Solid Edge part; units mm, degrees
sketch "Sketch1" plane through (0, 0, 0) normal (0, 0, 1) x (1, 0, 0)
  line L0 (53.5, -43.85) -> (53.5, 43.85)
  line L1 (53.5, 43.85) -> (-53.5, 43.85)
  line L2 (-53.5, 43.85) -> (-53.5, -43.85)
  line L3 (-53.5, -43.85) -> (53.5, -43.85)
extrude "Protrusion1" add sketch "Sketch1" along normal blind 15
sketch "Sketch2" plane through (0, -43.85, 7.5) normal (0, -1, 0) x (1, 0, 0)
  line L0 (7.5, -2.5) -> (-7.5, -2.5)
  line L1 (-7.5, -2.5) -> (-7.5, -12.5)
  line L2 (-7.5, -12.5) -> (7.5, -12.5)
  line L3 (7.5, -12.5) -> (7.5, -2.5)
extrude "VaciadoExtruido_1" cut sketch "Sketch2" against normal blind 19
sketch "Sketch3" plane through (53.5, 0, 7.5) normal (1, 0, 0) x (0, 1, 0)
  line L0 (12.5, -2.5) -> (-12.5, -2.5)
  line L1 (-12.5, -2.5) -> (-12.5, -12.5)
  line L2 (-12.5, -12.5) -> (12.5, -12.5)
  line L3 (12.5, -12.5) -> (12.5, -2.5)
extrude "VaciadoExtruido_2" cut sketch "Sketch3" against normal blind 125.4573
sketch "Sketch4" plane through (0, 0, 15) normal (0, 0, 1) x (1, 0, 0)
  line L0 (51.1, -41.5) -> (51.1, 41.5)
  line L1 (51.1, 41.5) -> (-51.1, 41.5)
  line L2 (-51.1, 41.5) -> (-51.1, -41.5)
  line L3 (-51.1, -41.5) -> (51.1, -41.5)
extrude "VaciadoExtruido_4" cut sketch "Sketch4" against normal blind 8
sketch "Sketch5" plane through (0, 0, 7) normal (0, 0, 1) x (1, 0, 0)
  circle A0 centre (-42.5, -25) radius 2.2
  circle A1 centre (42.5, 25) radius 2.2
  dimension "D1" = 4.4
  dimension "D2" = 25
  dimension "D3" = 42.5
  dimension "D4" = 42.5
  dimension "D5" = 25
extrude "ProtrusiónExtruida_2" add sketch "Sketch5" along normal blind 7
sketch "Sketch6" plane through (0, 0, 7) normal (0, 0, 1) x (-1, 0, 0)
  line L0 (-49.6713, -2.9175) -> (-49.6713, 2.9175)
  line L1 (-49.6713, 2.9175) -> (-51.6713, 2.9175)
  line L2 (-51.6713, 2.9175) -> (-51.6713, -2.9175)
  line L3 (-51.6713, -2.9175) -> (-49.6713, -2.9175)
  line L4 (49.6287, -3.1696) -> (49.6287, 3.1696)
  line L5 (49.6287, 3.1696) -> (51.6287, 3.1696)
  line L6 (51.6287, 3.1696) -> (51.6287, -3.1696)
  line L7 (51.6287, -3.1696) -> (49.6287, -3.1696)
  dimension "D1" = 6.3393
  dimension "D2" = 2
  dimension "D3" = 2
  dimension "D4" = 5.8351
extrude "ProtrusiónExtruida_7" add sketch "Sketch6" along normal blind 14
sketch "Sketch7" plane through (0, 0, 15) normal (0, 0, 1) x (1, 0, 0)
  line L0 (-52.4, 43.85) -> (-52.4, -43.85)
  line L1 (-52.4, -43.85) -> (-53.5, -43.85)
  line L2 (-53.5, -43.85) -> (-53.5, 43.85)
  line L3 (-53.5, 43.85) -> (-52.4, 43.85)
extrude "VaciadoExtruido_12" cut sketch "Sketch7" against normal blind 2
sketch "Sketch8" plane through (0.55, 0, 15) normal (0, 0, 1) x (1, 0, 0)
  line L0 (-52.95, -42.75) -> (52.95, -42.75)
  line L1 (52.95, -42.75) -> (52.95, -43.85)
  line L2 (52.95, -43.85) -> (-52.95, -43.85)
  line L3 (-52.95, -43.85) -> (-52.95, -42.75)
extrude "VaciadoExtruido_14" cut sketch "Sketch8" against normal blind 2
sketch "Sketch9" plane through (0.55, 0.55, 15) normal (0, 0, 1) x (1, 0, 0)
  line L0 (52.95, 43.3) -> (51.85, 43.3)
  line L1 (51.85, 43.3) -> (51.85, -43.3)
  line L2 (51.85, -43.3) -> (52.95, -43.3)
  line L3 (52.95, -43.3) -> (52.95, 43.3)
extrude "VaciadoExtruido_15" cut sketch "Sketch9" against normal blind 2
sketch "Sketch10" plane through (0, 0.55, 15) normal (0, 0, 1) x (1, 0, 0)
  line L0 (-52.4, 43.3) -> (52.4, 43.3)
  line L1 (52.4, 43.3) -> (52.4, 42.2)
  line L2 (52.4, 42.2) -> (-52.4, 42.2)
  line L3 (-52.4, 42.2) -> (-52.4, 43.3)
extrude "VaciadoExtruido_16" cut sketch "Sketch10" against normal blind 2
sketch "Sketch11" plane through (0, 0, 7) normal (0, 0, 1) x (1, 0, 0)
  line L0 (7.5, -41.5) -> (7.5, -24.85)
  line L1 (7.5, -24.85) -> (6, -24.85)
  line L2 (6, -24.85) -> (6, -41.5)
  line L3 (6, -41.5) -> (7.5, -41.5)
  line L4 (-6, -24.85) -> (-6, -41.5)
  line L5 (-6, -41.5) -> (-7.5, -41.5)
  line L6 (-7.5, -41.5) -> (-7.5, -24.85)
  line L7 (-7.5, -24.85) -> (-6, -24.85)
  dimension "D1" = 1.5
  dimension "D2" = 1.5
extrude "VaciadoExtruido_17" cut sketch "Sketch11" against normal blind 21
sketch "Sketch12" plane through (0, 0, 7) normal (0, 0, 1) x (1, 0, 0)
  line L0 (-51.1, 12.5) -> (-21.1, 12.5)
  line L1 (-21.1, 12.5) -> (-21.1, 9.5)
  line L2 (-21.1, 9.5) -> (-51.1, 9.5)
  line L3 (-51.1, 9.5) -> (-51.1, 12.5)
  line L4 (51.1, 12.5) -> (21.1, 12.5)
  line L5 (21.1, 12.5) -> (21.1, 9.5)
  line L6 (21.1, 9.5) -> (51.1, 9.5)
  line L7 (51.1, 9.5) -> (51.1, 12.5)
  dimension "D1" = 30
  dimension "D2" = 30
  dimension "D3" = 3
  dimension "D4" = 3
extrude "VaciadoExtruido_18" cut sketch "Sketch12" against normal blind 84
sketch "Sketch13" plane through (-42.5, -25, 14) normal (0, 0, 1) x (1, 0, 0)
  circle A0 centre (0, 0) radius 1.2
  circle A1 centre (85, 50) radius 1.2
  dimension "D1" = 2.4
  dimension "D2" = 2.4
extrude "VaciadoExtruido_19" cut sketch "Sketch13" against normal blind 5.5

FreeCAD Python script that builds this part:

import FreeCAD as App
import Part
import Sketcher
from FreeCAD import Vector
Q = App.Units.Quantity

doc = App.newDocument("Part")
body = doc.addObject("PartDesign::Body", "Body")

sketch1 = doc.addObject("Sketcher::SketchObject", "Sketch")
body.addObject(sketch1)
sketch1.AttachmentSupport = (doc.XY_Plane, [""])
sketch1.MapMode = "FlatFace"
sketch1.addGeometry([
    Part.LineSegment(Vector(-54, -44, 0), Vector(54, -44, 0)),
    Part.LineSegment(Vector(54, -44, 0), Vector(54, 44, 0)),
    Part.LineSegment(Vector(54, 44, 0), Vector(-54, 44, 0)),
    Part.LineSegment(Vector(-54, 44, 0), Vector(-54, -44, 0)),
], False)
sketch1.addConstraint([
    Sketcher.Constraint("Coincident", 0, 2, 1, 1),
    Sketcher.Constraint("Coincident", 1, 2, 2, 1),
    Sketcher.Constraint("Coincident", 2, 2, 3, 1),
    Sketcher.Constraint("Coincident", 3, 2, 0, 1),
    Sketcher.Constraint("Horizontal", 0),
    Sketcher.Constraint("Vertical", 1),
    Sketcher.Constraint("Horizontal", 2),
    Sketcher.Constraint("Vertical", 3),
    Sketcher.Constraint("Symmetric", 0, 2, 2, 2, -1, 1),
    Sketcher.Constraint("DistanceX", 0, 1, 0, 2, Q("107 mm")),
    Sketcher.Constraint("DistanceY", 1, 1, 1, 2, Q("87.7 mm")),
])
pad1 = doc.addObject("PartDesign::Pad", "Pad")
body.addObject(pad1)
pad1.Profile = sketch1
pad1.Length = 15

sketch2 = doc.addObject("Sketcher::SketchObject", "Sketch001")
body.addObject(sketch2)
sketch2.AttachmentSupport = (doc.XZ_Plane, [""])
sketch2.MapMode = "FlatFace"
sketch2.AttachmentOffset = App.Placement(Vector(0, 0, 43.85), App.Rotation())
sketch2.addGeometry([
    Part.LineSegment(Vector(8, -5, 0), Vector(8, 5, 0)),
    Part.LineSegment(Vector(8, 5, 0), Vector(-8, 5, 0)),
    Part.LineSegment(Vector(-8, 5, 0), Vector(-8, -5, 0)),
    Part.LineSegment(Vector(-8, -5, 0), Vector(8, -5, 0)),
], False)
sketch2.addConstraint([
    Sketcher.Constraint("Coincident", 0, 2, 1, 1),
    Sketcher.Constraint("Coincident", 1, 2, 2, 1),
    Sketcher.Constraint("Coincident", 2, 2, 3, 1),
    Sketcher.Constraint("Coincident", 3, 2, 0, 1),
    Sketcher.Constraint("Vertical", 0),
    Sketcher.Constraint("Horizontal", 1),
    Sketcher.Constraint("Vertical", 2),
    Sketcher.Constraint("Horizontal", 3),
    Sketcher.Constraint("Symmetric", 0, 2, 2, 2, -1, 1),
    Sketcher.Constraint("DistanceX", 1, 2, 1, 1, Q("15 mm")),
    Sketcher.Constraint("DistanceY", 0, 1, 0, 2, Q("10 mm")),
])
pocket1 = doc.addObject("PartDesign::Pocket", "Pocket")
body.addObject(pocket1)
pocket1.Profile = sketch2
pocket1.Length = 19

sketch3 = doc.addObject("Sketcher::SketchObject", "Sketch002")
body.addObject(sketch3)
sketch3.AttachmentSupport = (doc.YZ_Plane, [""])
sketch3.MapMode = "FlatFace"
sketch3.AttachmentOffset = App.Placement(Vector(0, 0, 53.5), App.Rotation())
sketch3.addGeometry([
    Part.LineSegment(Vector(12, -5, 0), Vector(12, 5, 0)),
    Part.LineSegment(Vector(12, 5, 0), Vector(-12, 5, 0)),
    Part.LineSegment(Vector(-12, 5, 0), Vector(-12, -5, 0)),
    Part.LineSegment(Vector(-12, -5, 0), Vector(12, -5, 0)),
], False)
sketch3.addConstraint([
    Sketcher.Constraint("Coincident", 0, 2, 1, 1),
    Sketcher.Constraint("Coincident", 1, 2, 2, 1),
    Sketcher.Constraint("Coincident", 2, 2, 3, 1),
    Sketcher.Constraint("Coincident", 3, 2, 0, 1),
    Sketcher.Constraint("Vertical", 0),
    Sketcher.Constraint("Horizontal", 1),
    Sketcher.Constraint("Vertical", 2),
    Sketcher.Constraint("Horizontal", 3),
    Sketcher.Constraint("Symmetric", 0, 2, 2, 2, -1, 1),
    Sketcher.Constraint("DistanceX", 1, 2, 1, 1, Q("25 mm")),
    Sketcher.Constraint("DistanceY", 0, 1, 0, 2, Q("10 mm")),
])
pocket2 = doc.addObject("PartDesign::Pocket", "Pocket001")
body.addObject(pocket2)
pocket2.Profile = sketch3
pocket2.Length = 125.4573

sketch4 = doc.addObject("Sketcher::SketchObject", "Sketch003")
body.addObject(sketch4)
sketch4.AttachmentSupport = (doc.XY_Plane, [""])
sketch4.MapMode = "FlatFace"
sketch4.AttachmentOffset = App.Placement(Vector(0, 0, 15), App.Rotation())
sketch4.addGeometry([
    Part.LineSegment(Vector(-51, -42, 0), Vector(51, -42, 0)),
    Part.LineSegment(Vector(51, -42, 0), Vector(51, 42, 0)),
    Part.LineSegment(Vector(51, 42, 0), Vector(-51, 42, 0)),
    Part.LineSegment(Vector(-51, 42, 0), Vector(-51, -42, 0)),
], False)
sketch4.addConstraint([
    Sketcher.Constraint("Coincident", 0, 2, 1, 1),
    Sketcher.Constraint("Coincident", 1, 2, 2, 1),
    Sketcher.Constraint("Coincident", 2, 2, 3, 1),
    Sketcher.Constraint("Coincident", 3, 2, 0, 1),
    Sketcher.Constraint("Horizontal", 0),
    Sketcher.Constraint("Vertical", 1),
    Sketcher.Constraint("Horizontal", 2),
    Sketcher.Constraint("Vertical", 3),
    Sketcher.Constraint("Symmetric", 0, 2, 2, 2, -1, 1),
    Sketcher.Constraint("DistanceY", 1, 1, 1, 2, Q("83 mm")),
    Sketcher.Constraint("DistanceX", 0, 1, 0, 2, Q("102.2 mm")),
])
pocket3 = doc.addObject("PartDesign::Pocket", "Pocket002")
body.addObject(pocket3)
pocket3.Profile = sketch4
pocket3.Length = 8

sketch5 = doc.addObject("Sketcher::SketchObject", "Sketch004")
body.addObject(sketch5)
sketch5.AttachmentSupport = (doc.XY_Plane, [""])
sketch5.MapMode = "FlatFace"
sketch5.AttachmentOffset = App.Placement(Vector(0, 0, 7), App.Rotation())
sketch5.addGeometry([
    Part.Circle(Vector(-42.5, -25, 0), Vector(0, 0, 1), 2.2),
    Part.Circle(Vector(42.5, 25, 0), Vector(0, 0, 1), 2.2),
], False)
sketch5.addConstraint([
    Sketcher.Constraint("Equal", 0, 1),
    Sketcher.Constraint("Symmetric", 0, 3, 1, 3, -1, 1),
    Sketcher.Constraint("Diameter", 0, Q("4.4 mm")),
    Sketcher.Constraint("DistanceY", 0, 3, -1, 1, Q("25 mm")),
    Sketcher.Constraint("DistanceX", 0, 3, 1, 3, Q("85 mm")),
])
pad2 = doc.addObject("PartDesign::Pad", "Pad001")
body.addObject(pad2)
pad2.Profile = sketch5
pad2.Length = 7

sketch6 = doc.addObject("Sketcher::SketchObject", "Sketch005")
body.addObject(sketch6)
sketch6.AttachmentSupport = (doc.XY_Plane, [""])
sketch6.MapMode = "FlatFace"
sketch6.AttachmentOffset = App.Placement(Vector(0, 0, 7), App.Rotation())
sketch6.addGeometry([
    Part.LineSegment(Vector(51.7, 2.9, 0), Vector(49.7, 2.9, 0)),
    Part.LineSegment(Vector(49.7, 2.9, 0), Vector(49.7, -2.9, 0)),
    Part.LineSegment(Vector(49.7, -2.9, 0), Vector(51.7, -2.9, 0)),
    Part.LineSegment(Vector(51.7, -2.9, 0), Vector(51.7, 2.9, 0)),
    Part.LineSegment(Vector(-49.6, -3.2, 0), Vector(-49.6, 3.2, 0)),
    Part.LineSegment(Vector(-49.6, 3.2, 0), Vector(-51.6, 3.2, 0)),
    Part.LineSegment(Vector(-51.6, 3.2, 0), Vector(-51.6, -3.2, 0)),
    Part.LineSegment(Vector(-51.6, -3.2, 0), Vector(-49.6, -3.2, 0)),
], False)
sketch6.addConstraint([
    Sketcher.Constraint("Coincident", 0, 2, 1, 1),
    Sketcher.Constraint("Coincident", 1, 2, 2, 1),
    Sketcher.Constraint("Coincident", 2, 2, 3, 1),
    Sketcher.Constraint("Coincident", 3, 2, 0, 1),
    Sketcher.Constraint("Coincident", 4, 2, 5, 1),
    Sketcher.Constraint("Coincident", 5, 2, 6, 1),
    Sketcher.Constraint("Coincident", 6, 2, 7, 1),
    Sketcher.Constraint("Coincident", 7, 2, 4, 1),
    Sketcher.Constraint("Horizontal", 0),
    Sketcher.Constraint("Vertical", 1),
    Sketcher.Constraint("Horizontal", 2),
    Sketcher.Constraint("Vertical", 3),
    Sketcher.Constraint("Vertical", 4),
    Sketcher.Constraint("Horizontal", 5),
    Sketcher.Constraint("Vertical", 6),
    Sketcher.Constraint("Horizontal", 7),
    Sketcher.Constraint("Equal", 2, 5),
    Sketcher.Constraint("DistanceX", 0, 2, 0, 1, Q("2 mm")),
    Sketcher.Constraint("DistanceX", 4, 2, 0, 2, Q("99.3 mm")),
    Sketcher.Constraint("DistanceY", 1, 2, 1, 1, Q("5.835 mm")),
    Sketcher.Constraint("DistanceY", 4, 1, 4, 2, Q("6.3392 mm")),
    Sketcher.Constraint("DistanceY", 0, 2, 4, 2, Q("0.252 mm")),
    Sketcher.Constraint("DistanceX", -1, 1, 0, 2, Q("49.6713 mm")),
    Sketcher.Constraint("DistanceY", -1, 1, 0, 2, Q("2.9175 mm")),
])
pad3 = doc.addObject("PartDesign::Pad", "Pad002")
body.addObject(pad3)
pad3.Profile = sketch6
pad3.Length = 14

sketch7 = doc.addObject("Sketcher::SketchObject", "Sketch006")
body.addObject(sketch7)
sketch7.AttachmentSupport = (doc.XY_Plane, [""])
sketch7.MapMode = "FlatFace"
sketch7.AttachmentOffset = App.Placement(Vector(0, 0, 15), App.Rotation())
sketch7.addGeometry([
    Part.LineSegment(Vector(-52.4, -43.9, 0), Vector(-52.4, 43.9, 0)),
    Part.LineSegment(Vector(-52.4, 43.9, 0), Vector(-53.5, 43.9, 0)),
    Part.LineSegment(Vector(-53.5, 43.9, 0), Vector(-53.5, -43.9, 0)),
    Part.LineSegment(Vector(-53.5, -43.9, 0), Vector(-52.4, -43.9, 0)),
], False)
sketch7.addConstraint([
    Sketcher.Constraint("Coincident", 0, 2, 1, 1),
    Sketcher.Constraint("Coincident", 1, 2, 2, 1),
    Sketcher.Constraint("Coincident", 2, 2, 3, 1),
    Sketcher.Constraint("Coincident", 3, 2, 0, 1),
    Sketcher.Constraint("Vertical", 0),
    Sketcher.Constraint("Horizontal", 1),
    Sketcher.Constraint("Vertical", 2),
    Sketcher.Constraint("Horizontal", 3),
    Sketcher.Constraint("DistanceX", 1, 2, 1, 1, Q("1.1 mm")),
    Sketcher.Constraint("DistanceY", 0, 1, 0, 2, Q("87.7 mm")),
    Sketcher.Constraint("DistanceX", 0, 2, -1, 1, Q("52.4 mm")),
    Sketcher.Constraint("DistanceY", -1, 1, 0, 2, Q("43.85 mm")),
])
pocket4 = doc.addObject("PartDesign::Pocket", "Pocket003")
body.addObject(pocket4)
pocket4.Profile = sketch7
pocket4.Length = 2

sketch8 = doc.addObject("Sketcher::SketchObject", "Sketch007")
body.addObject(sketch8)
sketch8.AttachmentSupport = (doc.XY_Plane, [""])
sketch8.MapMode = "FlatFace"
sketch8.AttachmentOffset = App.Placement(Vector(0, 0, 15), App.Rotation())
sketch8.addGeometry([
    Part.LineSegment(Vector(53.5, -42.8, 0), Vector(-52.4, -42.8, 0)),
    Part.LineSegment(Vector(-52.4, -42.8, 0), Vector(-52.4, -43.9, 0)),
    Part.LineSegment(Vector(-52.4, -43.9, 0), Vector(53.5, -43.9, 0)),
    Part.LineSegment(Vector(53.5, -43.9, 0), Vector(53.5, -42.8, 0)),
], False)
sketch8.addConstraint([
    Sketcher.Constraint("Coincident", 0, 2, 1, 1),
    Sketcher.Constraint("Coincident", 1, 2, 2, 1),
    Sketcher.Constraint("Coincident", 2, 2, 3, 1),
    Sketcher.Constraint("Coincident", 3, 2, 0, 1),
    Sketcher.Constraint("Horizontal", 0),
    Sketcher.Constraint("Vertical", 1),
    Sketcher.Constraint("Horizontal", 2),
    Sketcher.Constraint("Vertical", 3),
    Sketcher.Constraint("DistanceX", 0, 2, 0, 1, Q("105.9 mm")),
    Sketcher.Constraint("DistanceY", 1, 2, 1, 1, Q("1.1 mm")),
    Sketcher.Constraint("DistanceX", 0, 2, -1, 1, Q("52.4 mm")),
    Sketcher.Constraint("DistanceY", 0, 2, -1, 1, Q("42.75 mm")),
])
pocket5 = doc.addObject("PartDesign::Pocket", "Pocket004")
body.addObject(pocket5)
pocket5.Profile = sketch8
pocket5.Length = 2

sketch9 = doc.addObject("Sketcher::SketchObject", "Sketch008")
body.addObject(sketch9)
sketch9.AttachmentSupport = (doc.XY_Plane, [""])
sketch9.MapMode = "FlatFace"
sketch9.AttachmentOffset = App.Placement(Vector(0, 0, 15), App.Rotation())
sketch9.addGeometry([
    Part.LineSegment(Vector(53.5, -42.8, 0), Vector(53.5, 43.9, 0)),
    Part.LineSegment(Vector(53.5, 43.9, 0), Vector(52.4, 43.9, 0)),
    Part.LineSegment(Vector(52.4, 43.9, 0), Vector(52.4, -42.8, 0)),
    Part.LineSegment(Vector(52.4, -42.8, 0), Vector(53.5, -42.8, 0)),
], False)
sketch9.addConstraint([
    Sketcher.Constraint("Coincident", 0, 2, 1, 1),
    Sketcher.Constraint("Coincident", 1, 2, 2, 1),
    Sketcher.Constraint("Coincident", 2, 2, 3, 1),
    Sketcher.Constraint("Coincident", 3, 2, 0, 1),
    Sketcher.Constraint("Vertical", 0),
    Sketcher.Constraint("Horizontal", 1),
    Sketcher.Constraint("Vertical", 2),
    Sketcher.Constraint("Horizontal", 3),
    Sketcher.Constraint("DistanceX", 1, 2, 1, 1, Q("1.1 mm")),
    Sketcher.Constraint("DistanceY", 0, 1, 0, 2, Q("86.6 mm")),
    Sketcher.Constraint("DistanceX", -1, 1, 0, 2, Q("53.5 mm")),
    Sketcher.Constraint("DistanceY", -1, 1, 0, 2, Q("43.85 mm")),
])
pocket6 = doc.addObject("PartDesign::Pocket", "Pocket005")
body.addObject(pocket6)
pocket6.Profile = sketch9
pocket6.Length = 2

sketch10 = doc.addObject("Sketcher::SketchObject", "Sketch009")
body.addObject(sketch10)
sketch10.AttachmentSupport = (doc.XY_Plane, [""])
sketch10.MapMode = "FlatFace"
sketch10.AttachmentOffset = App.Placement(Vector(0, 0, 15), App.Rotation())
sketch10.addGeometry([
    Part.LineSegment(Vector(52.4, 43.9, 0), Vector(-52.4, 43.9, 0)),
    Part.LineSegment(Vector(-52.4, 43.9, 0), Vector(-52.4, 42.8, 0)),
    Part.LineSegment(Vector(-52.4, 42.8, 0), Vector(52.4, 42.8, 0)),
    Part.LineSegment(Vector(52.4, 42.8, 0), Vector(52.4, 43.9, 0)),
], False)
sketch10.addConstraint([
    Sketcher.Constraint("Coincident", 0, 2, 1, 1),
    Sketcher.Constraint("Coincident", 1, 2, 2, 1),
    Sketcher.Constraint("Coincident", 2, 2, 3, 1),
    Sketcher.Constraint("Coincident", 3, 2, 0, 1),
    Sketcher.Constraint("Horizontal", 0),
    Sketcher.Constraint("Vertical", 1),
    Sketcher.Constraint("Horizontal", 2),
    Sketcher.Constraint("Vertical", 3),
    Sketcher.Constraint("DistanceX", 0, 2, 0, 1, Q("104.8 mm")),
    Sketcher.Constraint("DistanceY", 1, 2, 1, 1, Q("1.1 mm")),
    Sketcher.Constraint("DistanceX", 0, 2, -1, 1, Q("52.4 mm")),
    Sketcher.Constraint("DistanceY", -1, 1, 0, 2, Q("43.85 mm")),
])
pocket7 = doc.addObject("PartDesign::Pocket", "Pocket006")
body.addObject(pocket7)
pocket7.Profile = sketch10
pocket7.Length = 2

sketch11 = doc.addObject("Sketcher::SketchObject", "Sketch010")
body.addObject(sketch11)
sketch11.AttachmentSupport = (doc.XY_Plane, [""])
sketch11.MapMode = "FlatFace"
sketch11.AttachmentOffset = App.Placement(Vector(0, 0, 7), App.Rotation())
sketch11.addGeometry([
    Part.LineSegment(Vector(6, -41.5, 0), Vector(7.5, -41.5, 0)),
    Part.LineSegment(Vector(7.5, -41.5, 0), Vector(7.5, -24.9, 0)),
    Part.LineSegment(Vector(7.5, -24.9, 0), Vector(6, -24.9, 0)),
    Part.LineSegment(Vector(6, -24.9, 0), Vector(6, -41.5, 0)),
    Part.LineSegment(Vector(-6, -41.5, 0), Vector(-6, -24.9, 0)),
    Part.LineSegment(Vector(-6, -24.9, 0), Vector(-7.5, -24.9, 0)),
    Part.LineSegment(Vector(-7.5, -24.9, 0), Vector(-7.5, -41.5, 0)),
    Part.LineSegment(Vector(-7.5, -41.5, 0), Vector(-6, -41.5, 0)),
], False)
sketch11.addConstraint([
    Sketcher.Constraint("Coincident", 0, 2, 1, 1),
    Sketcher.Constraint("Coincident", 1, 2, 2, 1),
    Sketcher.Constraint("Coincident", 2, 2, 3, 1),
    Sketcher.Constraint("Coincident", 3, 2, 0, 1),
    Sketcher.Constraint("Coincident", 4, 2, 5, 1),
    Sketcher.Constraint("Coincident", 5, 2, 6, 1),
    Sketcher.Constraint("Coincident", 6, 2, 7, 1),
    Sketcher.Constraint("Coincident", 7, 2, 4, 1),
    Sketcher.Constraint("Horizontal", 0),
    Sketcher.Constraint("Vertical", 1),
    Sketcher.Constraint("Horizontal", 2),
    Sketcher.Constraint("Vertical", 3),
    Sketcher.Constraint("Vertical", 4),
    Sketcher.Constraint("Horizontal", 5),
    Sketcher.Constraint("Vertical", 6),
    Sketcher.Constraint("Horizontal", 7),
    Sketcher.Constraint("Symmetric", 2, 2, 4, 2, -2),
    Sketcher.Constraint("Symmetric", 0, 2, 6, 2, -2),
    Sketcher.Constraint("DistanceX", 0, 1, 0, 2, Q("1.5 mm")),
    Sketcher.Constraint("DistanceX", -1, 1, 2, 2, Q("6 mm")),
    Sketcher.Constraint("DistanceY", 1, 1, 1, 2, Q("16.65 mm")),
    Sketcher.Constraint("DistanceY", 0, 2, -1, 1, Q("41.5 mm")),
])
pocket8 = doc.addObject("PartDesign::Pocket", "Pocket007")
body.addObject(pocket8)
pocket8.Profile = sketch11
pocket8.Length = 21

sketch12 = doc.addObject("Sketcher::SketchObject", "Sketch011")
body.addObject(sketch12)
sketch12.AttachmentSupport = (doc.XY_Plane, [""])
sketch12.MapMode = "FlatFace"
sketch12.AttachmentOffset = App.Placement(Vector(0, 0, 7), App.Rotation())
sketch12.addGeometry([
    Part.LineSegment(Vector(-21.1, 12.5, 0), Vector(-51.1, 12.5, 0)),
    Part.LineSegment(Vector(-51.1, 12.5, 0), Vector(-51.1, 9.5, 0)),
    Part.LineSegment(Vector(-51.1, 9.5, 0), Vector(-21.1, 9.5, 0)),
    Part.LineSegment(Vector(-21.1, 9.5, 0), Vector(-21.1, 12.5, 0)),
    Part.LineSegment(Vector(51.1, 9.5, 0), Vector(51.1, 12.5, 0)),
    Part.LineSegment(Vector(51.1, 12.5, 0), Vector(21.1, 12.5, 0)),
    Part.LineSegment(Vector(21.1, 12.5, 0), Vector(21.1, 9.5, 0)),
    Part.LineSegment(Vector(21.1, 9.5, 0), Vector(51.1, 9.5, 0)),
], False)
sketch12.addConstraint([
    Sketcher.Constraint("Coincident", 0, 2, 1, 1),
    Sketcher.Constraint("Coincident", 1, 2, 2, 1),
    Sketcher.Constraint("Coincident", 2, 2, 3, 1),
    Sketcher.Constraint("Coincident", 3, 2, 0, 1),
    Sketcher.Constraint("Coincident", 4, 2, 5, 1),
    Sketcher.Constraint("Coincident", 5, 2, 6, 1),
    Sketcher.Constraint("Coincident", 6, 2, 7, 1),
    Sketcher.Constraint("Coincident", 7, 2, 4, 1),
    Sketcher.Constraint("Horizontal", 0),
    Sketcher.Constraint("Vertical", 1),
    Sketcher.Constraint("Horizontal", 2),
    Sketcher.Constraint("Vertical", 3),
    Sketcher.Constraint("Vertical", 4),
    Sketcher.Constraint("Horizontal", 5),
    Sketcher.Constraint("Vertical", 6),
    Sketcher.Constraint("Horizontal", 7),
    Sketcher.Constraint("Symmetric", 0, 2, 4, 2, -2),
    Sketcher.Constraint("Symmetric", 2, 2, 6, 2, -2),
    Sketcher.Constraint("DistanceX", 0, 2, 0, 1, Q("30 mm")),
    Sketcher.Constraint("DistanceY", 1, 2, 1, 1, Q("3 mm")),
    Sketcher.Constraint("DistanceX", 0, 2, -1, 1, Q("51.1 mm")),
    Sketcher.Constraint("DistanceY", -1, 1, 0, 2, Q("12.5 mm")),
])
pocket9 = doc.addObject("PartDesign::Pocket", "Pocket008")
body.addObject(pocket9)
pocket9.Profile = sketch12
pocket9.Length = 84

sketch13 = doc.addObject("Sketcher::SketchObject", "Sketch012")
body.addObject(sketch13)
sketch13.AttachmentSupport = (doc.XY_Plane, [""])
sketch13.MapMode = "FlatFace"
sketch13.AttachmentOffset = App.Placement(Vector(0, 0, 14), App.Rotation())
sketch13.addGeometry([
    Part.Circle(Vector(-42.5, -25, 0), Vector(0, 0, 1), 1.2),
    Part.Circle(Vector(42.5, 25, 0), Vector(0, 0, 1), 1.2),
], False)
sketch13.addConstraint([
    Sketcher.Constraint("Equal", 0, 1),
    Sketcher.Constraint("Symmetric", 0, 3, 1, 3, -1, 1),
    Sketcher.Constraint("Diameter", 0, Q("2.4 mm")),
    Sketcher.Constraint("DistanceY", 0, 3, -1, 1, Q("25 mm")),
    Sketcher.Constraint("DistanceX", 0, 3, 1, 3, Q("85 mm")),
])
pocket10 = doc.addObject("PartDesign::Pocket", "Pocket009")
body.addObject(pocket10)
pocket10.Profile = sketch13
pocket10.Length = 5.5

doc.recompute()
